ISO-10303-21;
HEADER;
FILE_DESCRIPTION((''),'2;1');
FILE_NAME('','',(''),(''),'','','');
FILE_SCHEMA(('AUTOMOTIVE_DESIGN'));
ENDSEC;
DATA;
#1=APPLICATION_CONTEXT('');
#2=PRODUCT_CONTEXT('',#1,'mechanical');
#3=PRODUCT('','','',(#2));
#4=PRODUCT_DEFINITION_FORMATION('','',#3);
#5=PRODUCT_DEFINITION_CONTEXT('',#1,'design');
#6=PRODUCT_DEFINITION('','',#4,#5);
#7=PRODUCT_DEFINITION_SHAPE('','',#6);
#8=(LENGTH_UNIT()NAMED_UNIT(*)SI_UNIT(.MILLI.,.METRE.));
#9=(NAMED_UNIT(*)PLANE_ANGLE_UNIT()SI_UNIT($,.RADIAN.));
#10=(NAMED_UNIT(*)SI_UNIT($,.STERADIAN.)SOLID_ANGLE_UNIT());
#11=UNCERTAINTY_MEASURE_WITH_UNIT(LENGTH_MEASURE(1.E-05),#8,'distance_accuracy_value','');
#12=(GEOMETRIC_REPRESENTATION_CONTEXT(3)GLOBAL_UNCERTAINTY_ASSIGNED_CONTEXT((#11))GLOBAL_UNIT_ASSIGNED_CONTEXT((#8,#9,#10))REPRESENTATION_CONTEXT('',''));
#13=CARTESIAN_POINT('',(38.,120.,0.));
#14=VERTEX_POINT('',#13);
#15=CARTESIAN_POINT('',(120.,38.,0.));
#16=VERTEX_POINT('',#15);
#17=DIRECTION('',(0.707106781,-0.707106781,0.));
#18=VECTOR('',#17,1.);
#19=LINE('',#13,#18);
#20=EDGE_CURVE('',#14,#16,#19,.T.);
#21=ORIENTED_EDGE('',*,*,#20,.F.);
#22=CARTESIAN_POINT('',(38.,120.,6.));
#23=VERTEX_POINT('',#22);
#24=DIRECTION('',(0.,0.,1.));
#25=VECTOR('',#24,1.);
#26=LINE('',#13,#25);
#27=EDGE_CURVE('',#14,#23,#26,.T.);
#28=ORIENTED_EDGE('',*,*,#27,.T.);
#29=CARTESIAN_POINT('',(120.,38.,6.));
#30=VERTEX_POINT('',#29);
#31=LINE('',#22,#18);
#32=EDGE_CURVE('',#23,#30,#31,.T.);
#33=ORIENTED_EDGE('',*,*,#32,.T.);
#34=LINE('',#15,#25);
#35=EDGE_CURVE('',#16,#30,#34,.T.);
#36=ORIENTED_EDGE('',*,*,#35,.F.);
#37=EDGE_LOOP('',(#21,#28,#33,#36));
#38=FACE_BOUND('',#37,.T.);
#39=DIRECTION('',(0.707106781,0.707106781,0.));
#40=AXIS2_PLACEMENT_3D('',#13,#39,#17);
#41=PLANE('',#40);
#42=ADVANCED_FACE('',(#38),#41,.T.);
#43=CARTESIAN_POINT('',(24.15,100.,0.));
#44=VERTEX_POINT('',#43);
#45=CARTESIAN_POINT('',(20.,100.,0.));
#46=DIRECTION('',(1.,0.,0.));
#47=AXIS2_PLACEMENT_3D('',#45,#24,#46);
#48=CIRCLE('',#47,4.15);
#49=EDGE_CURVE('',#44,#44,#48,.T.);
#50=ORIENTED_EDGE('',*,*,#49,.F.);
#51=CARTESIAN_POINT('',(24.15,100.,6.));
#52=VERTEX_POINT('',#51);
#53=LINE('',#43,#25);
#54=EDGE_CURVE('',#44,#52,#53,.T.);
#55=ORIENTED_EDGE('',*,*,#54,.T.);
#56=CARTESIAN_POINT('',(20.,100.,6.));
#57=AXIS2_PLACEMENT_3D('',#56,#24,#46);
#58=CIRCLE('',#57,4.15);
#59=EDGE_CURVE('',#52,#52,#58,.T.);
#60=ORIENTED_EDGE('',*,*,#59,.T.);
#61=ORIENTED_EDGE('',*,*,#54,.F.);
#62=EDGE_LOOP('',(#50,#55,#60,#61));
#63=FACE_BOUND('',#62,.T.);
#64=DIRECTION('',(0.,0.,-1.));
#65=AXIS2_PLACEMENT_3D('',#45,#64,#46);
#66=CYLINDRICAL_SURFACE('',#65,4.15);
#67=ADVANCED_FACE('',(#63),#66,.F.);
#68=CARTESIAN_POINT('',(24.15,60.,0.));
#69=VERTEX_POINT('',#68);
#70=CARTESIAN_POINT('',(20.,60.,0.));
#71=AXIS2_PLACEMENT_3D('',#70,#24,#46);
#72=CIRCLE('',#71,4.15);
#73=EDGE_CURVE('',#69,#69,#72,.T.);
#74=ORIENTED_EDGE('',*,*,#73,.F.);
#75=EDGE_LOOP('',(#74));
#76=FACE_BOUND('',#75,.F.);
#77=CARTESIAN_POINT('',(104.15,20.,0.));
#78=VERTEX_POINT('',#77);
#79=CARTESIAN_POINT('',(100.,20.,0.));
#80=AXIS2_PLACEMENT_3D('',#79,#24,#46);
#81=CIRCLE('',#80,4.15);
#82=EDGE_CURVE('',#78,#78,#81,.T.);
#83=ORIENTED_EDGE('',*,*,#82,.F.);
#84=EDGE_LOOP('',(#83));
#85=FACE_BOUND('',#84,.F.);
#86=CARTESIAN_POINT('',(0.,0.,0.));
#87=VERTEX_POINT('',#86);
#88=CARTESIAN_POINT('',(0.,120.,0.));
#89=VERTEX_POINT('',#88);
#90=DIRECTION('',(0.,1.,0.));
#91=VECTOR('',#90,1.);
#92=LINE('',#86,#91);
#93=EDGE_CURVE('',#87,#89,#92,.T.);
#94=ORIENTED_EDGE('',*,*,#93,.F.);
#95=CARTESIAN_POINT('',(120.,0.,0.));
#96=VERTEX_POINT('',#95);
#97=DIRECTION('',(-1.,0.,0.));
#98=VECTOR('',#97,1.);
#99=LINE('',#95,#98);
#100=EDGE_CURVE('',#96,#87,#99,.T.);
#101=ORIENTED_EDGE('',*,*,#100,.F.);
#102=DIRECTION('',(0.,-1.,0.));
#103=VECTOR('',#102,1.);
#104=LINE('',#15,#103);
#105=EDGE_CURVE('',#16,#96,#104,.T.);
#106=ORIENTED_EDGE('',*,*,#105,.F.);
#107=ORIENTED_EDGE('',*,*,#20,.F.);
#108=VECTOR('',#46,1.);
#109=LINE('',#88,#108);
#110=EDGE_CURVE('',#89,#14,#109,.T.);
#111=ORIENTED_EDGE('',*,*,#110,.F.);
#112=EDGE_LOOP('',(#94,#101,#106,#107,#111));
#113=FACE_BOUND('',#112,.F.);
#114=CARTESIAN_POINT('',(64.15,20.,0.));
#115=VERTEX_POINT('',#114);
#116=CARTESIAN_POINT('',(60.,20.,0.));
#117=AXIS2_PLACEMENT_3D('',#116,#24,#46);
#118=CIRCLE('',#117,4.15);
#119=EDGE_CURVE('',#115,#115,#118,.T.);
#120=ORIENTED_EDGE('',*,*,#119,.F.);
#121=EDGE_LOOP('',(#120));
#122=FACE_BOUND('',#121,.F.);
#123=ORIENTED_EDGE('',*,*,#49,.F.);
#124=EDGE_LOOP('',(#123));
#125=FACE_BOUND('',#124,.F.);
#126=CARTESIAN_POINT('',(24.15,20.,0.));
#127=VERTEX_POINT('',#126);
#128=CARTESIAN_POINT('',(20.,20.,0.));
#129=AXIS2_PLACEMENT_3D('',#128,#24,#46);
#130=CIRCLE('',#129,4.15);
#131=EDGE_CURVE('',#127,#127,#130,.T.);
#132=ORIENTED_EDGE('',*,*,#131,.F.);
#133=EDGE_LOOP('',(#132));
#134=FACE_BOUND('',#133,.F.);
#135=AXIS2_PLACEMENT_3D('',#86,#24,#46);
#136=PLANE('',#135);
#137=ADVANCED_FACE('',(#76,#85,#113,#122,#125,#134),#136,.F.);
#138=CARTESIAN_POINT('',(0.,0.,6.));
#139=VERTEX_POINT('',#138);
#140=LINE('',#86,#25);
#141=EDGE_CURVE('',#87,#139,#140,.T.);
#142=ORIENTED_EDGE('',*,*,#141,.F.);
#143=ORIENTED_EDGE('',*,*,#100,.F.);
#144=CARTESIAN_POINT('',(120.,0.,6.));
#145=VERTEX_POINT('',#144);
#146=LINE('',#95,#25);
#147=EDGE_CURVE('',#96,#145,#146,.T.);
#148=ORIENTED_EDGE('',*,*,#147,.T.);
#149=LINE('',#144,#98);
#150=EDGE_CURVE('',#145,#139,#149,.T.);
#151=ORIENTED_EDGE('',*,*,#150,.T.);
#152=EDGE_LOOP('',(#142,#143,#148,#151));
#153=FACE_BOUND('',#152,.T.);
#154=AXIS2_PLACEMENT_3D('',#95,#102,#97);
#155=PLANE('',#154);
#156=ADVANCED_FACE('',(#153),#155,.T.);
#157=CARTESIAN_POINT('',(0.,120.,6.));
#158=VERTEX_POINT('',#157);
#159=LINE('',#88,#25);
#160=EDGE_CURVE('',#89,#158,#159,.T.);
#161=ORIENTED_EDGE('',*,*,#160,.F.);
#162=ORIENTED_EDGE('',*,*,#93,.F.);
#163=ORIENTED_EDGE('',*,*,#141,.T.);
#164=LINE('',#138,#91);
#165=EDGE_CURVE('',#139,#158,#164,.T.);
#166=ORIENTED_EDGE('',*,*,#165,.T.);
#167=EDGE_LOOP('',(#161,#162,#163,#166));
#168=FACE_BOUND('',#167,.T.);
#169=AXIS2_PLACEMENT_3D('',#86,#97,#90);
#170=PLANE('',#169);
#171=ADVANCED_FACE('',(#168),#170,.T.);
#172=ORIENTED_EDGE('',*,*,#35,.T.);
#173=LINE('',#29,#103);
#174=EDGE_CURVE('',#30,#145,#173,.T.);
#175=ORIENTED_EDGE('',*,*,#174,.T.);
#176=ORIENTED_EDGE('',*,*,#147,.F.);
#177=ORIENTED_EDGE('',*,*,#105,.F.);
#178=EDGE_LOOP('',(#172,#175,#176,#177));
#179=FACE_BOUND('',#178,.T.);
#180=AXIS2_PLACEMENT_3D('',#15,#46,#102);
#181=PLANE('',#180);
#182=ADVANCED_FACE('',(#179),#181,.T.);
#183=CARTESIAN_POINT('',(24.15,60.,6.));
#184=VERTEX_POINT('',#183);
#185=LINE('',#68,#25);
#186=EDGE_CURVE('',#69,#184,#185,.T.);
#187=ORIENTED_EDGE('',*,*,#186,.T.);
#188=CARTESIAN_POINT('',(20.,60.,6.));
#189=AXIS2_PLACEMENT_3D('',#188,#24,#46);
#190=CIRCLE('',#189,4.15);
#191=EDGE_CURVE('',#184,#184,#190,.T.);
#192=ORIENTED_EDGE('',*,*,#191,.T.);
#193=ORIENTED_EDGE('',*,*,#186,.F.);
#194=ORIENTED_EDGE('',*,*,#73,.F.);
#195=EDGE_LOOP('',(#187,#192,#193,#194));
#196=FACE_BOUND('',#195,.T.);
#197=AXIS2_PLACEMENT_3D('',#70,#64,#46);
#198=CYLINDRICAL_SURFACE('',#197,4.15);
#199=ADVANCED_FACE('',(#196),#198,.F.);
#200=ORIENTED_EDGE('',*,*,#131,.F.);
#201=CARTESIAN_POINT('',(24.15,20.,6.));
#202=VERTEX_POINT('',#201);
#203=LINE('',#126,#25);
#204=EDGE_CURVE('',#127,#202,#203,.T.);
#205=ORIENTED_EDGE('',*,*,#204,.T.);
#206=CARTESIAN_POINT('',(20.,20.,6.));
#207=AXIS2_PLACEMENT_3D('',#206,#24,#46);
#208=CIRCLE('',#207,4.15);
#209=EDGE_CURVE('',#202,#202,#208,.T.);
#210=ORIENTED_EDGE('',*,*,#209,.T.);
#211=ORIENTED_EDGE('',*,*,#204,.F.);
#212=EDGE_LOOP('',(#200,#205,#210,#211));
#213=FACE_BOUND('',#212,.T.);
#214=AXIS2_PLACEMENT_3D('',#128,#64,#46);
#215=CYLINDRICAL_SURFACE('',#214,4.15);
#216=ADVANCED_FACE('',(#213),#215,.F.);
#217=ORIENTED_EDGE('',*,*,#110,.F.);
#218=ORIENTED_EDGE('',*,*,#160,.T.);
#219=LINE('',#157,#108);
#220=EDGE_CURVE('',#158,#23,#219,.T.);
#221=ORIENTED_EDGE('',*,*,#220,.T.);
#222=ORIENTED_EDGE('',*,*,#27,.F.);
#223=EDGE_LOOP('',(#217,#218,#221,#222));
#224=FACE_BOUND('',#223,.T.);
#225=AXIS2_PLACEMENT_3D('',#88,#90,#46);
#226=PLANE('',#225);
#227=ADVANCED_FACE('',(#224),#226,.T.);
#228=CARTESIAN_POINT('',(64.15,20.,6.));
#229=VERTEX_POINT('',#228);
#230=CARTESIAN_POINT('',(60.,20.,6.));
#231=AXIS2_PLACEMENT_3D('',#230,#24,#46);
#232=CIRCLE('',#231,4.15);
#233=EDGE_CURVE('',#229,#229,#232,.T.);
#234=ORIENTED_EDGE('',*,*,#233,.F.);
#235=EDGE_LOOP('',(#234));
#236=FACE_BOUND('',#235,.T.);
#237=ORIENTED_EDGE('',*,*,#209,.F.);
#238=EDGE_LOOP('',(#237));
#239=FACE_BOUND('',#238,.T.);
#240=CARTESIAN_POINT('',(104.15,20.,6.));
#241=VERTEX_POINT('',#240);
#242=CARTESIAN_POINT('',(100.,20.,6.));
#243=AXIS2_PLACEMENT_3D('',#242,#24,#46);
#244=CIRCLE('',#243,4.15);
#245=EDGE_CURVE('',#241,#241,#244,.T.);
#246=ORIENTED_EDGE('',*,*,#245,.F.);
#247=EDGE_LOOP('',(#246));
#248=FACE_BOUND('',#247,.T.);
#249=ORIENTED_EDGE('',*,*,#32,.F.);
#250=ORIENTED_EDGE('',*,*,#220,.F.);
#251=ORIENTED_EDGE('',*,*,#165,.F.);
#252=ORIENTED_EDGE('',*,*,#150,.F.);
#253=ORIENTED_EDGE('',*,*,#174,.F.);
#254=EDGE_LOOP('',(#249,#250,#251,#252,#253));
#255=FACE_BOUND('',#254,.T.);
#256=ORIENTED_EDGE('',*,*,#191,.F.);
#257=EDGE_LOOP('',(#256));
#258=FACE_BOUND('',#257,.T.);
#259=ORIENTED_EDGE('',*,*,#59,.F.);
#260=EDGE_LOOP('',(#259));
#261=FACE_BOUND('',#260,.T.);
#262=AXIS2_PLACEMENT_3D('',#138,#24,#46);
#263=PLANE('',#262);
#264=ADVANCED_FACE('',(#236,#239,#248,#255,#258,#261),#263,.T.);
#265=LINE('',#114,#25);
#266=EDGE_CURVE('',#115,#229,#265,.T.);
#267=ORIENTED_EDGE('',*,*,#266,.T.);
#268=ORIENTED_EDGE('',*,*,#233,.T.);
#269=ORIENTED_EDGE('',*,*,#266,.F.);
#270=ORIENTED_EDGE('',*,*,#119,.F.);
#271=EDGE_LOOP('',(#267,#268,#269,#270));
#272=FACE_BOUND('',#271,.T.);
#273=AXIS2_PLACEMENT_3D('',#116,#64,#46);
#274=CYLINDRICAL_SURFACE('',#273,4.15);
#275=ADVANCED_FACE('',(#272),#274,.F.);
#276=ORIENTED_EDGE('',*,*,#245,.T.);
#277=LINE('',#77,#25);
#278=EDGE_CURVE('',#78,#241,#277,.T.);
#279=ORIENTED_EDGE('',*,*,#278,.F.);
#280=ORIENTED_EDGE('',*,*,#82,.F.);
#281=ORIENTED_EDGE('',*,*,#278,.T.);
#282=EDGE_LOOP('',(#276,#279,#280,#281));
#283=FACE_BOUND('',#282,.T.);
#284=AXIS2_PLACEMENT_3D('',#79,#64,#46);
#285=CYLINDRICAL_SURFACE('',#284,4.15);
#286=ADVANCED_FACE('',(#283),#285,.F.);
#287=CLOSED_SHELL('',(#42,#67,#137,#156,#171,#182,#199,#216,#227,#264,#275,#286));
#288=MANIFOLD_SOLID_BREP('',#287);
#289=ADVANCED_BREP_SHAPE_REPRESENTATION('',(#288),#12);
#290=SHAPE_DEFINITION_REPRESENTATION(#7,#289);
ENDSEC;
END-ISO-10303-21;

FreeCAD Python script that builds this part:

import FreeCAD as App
import Part
import Sketcher


def add_polygon(sketch, points):
    """Adds a closed chain of lines whose ends are joined by coincident constraints."""
    first, n = sketch.GeometryCount, len(points)
    for a, b in zip(points, points[1:] + points[:1]):
        sketch.addGeometry(Part.LineSegment(App.Vector(*a, 0), App.Vector(*b, 0)), False)
    for i in range(n):
        sketch.addConstraint(Sketcher.Constraint("Coincident", first + i, 2, first + (i + 1) % n, 1))

doc = App.newDocument("Part")
params = doc.addObject("Spreadsheet::Sheet", "Params")
for row, (alias, value) in enumerate([
    ("sketch1_diameter", "8.3 mm"),
    ("sketch1_width", "120 mm"),
    ("sketch1_width2", "38 mm"),
    ("pad1_length", "6 mm"),
], start=1):
    params.set(f"A{row}", alias)
    params.set(f"B{row}", "=" + value)
    params.setAlias(f"B{row}", alias)

body = doc.addObject("PartDesign::Body", "Body")

sketch1 = doc.addObject("Sketcher::SketchObject", "Sketch")
body.addObject(sketch1)
sketch1.AttachmentSupport = (doc.XY_Plane, [""])
sketch1.MapMode = "FlatFace"
add_polygon(sketch1, [(0, 120), (0, 0), (120, 0), (120, 38), (38, 120)])
sketch1.addGeometry(Part.Circle(App.Vector(20, 20, 0), App.Vector(0, 0, 1), 4.2), False)
sketch1.addGeometry(Part.Circle(App.Vector(60, 20, 0), App.Vector(0, 0, 1), 4.2), False)
sketch1.addGeometry(Part.Circle(App.Vector(100, 20, 0), App.Vector(0, 0, 1), 4.2), False)
sketch1.addGeometry(Part.Circle(App.Vector(20, 60, 0), App.Vector(0, 0, 1), 4.2), False)
sketch1.addGeometry(Part.Circle(App.Vector(20, 100, 0), App.Vector(0, 0, 1), 4.2), False)
sketch1.addConstraint([
    Sketcher.Constraint("Vertical", 0),
    Sketcher.Constraint("Horizontal", 1),
    Sketcher.Constraint("Vertical", 2),
    Sketcher.Constraint("Horizontal", 4),
    Sketcher.Constraint("Coincident", 0, 2, -1, 1),
    Sketcher.Constraint("Equal", 5, 6),
    Sketcher.Constraint("Equal", 6, 7),
    Sketcher.Constraint("Equal", 7, 8),
    Sketcher.Constraint("Equal", 8, 9),
    Sketcher.Constraint("Horizontal", 5, 3, 6, 3),
    Sketcher.Constraint("Horizontal", 6, 3, 7, 3),
    Sketcher.Constraint("Vertical", 5, 3, 8, 3),
    Sketcher.Constraint("Vertical", 8, 3, 9, 3),
    Sketcher.Constraint("Equal", 1, 0),
    Sketcher.Constraint("Equal", 4, 2),
    Sketcher.Constraint("Diameter", 5, 8.3),
    Sketcher.Constraint("DistanceX", 1, 1, 1, 2, 120.0),
    Sketcher.Constraint("DistanceX", 4, 2, 4, 1, 38.0),
    Sketcher.Constraint("DistanceX", -1, 1, 5, 3, 20.0),
    Sketcher.Constraint("DistanceY", -1, 1, 5, 3, 20.0),
    Sketcher.Constraint("DistanceX", 5, 3, 6, 3, 40.0),
    Sketcher.Constraint("DistanceX", 6, 3, 7, 3, 40.0),
    Sketcher.Constraint("DistanceY", 5, 3, 8, 3, 40.0),
    Sketcher.Constraint("DistanceY", 8, 3, 9, 3, 40.0),
])
sketch1.setExpression("Constraints[20]", "Params.sketch1_diameter")
sketch1.setExpression("Constraints[21]", "Params.sketch1_width")
sketch1.setExpression("Constraints[22]", "Params.sketch1_width2")
pad1 = doc.addObject("PartDesign::Pad", "Pad")
body.addObject(pad1)
pad1.Profile = sketch1
pad1.setExpression("Length", "Params.pad1_length")

doc.recompute()
